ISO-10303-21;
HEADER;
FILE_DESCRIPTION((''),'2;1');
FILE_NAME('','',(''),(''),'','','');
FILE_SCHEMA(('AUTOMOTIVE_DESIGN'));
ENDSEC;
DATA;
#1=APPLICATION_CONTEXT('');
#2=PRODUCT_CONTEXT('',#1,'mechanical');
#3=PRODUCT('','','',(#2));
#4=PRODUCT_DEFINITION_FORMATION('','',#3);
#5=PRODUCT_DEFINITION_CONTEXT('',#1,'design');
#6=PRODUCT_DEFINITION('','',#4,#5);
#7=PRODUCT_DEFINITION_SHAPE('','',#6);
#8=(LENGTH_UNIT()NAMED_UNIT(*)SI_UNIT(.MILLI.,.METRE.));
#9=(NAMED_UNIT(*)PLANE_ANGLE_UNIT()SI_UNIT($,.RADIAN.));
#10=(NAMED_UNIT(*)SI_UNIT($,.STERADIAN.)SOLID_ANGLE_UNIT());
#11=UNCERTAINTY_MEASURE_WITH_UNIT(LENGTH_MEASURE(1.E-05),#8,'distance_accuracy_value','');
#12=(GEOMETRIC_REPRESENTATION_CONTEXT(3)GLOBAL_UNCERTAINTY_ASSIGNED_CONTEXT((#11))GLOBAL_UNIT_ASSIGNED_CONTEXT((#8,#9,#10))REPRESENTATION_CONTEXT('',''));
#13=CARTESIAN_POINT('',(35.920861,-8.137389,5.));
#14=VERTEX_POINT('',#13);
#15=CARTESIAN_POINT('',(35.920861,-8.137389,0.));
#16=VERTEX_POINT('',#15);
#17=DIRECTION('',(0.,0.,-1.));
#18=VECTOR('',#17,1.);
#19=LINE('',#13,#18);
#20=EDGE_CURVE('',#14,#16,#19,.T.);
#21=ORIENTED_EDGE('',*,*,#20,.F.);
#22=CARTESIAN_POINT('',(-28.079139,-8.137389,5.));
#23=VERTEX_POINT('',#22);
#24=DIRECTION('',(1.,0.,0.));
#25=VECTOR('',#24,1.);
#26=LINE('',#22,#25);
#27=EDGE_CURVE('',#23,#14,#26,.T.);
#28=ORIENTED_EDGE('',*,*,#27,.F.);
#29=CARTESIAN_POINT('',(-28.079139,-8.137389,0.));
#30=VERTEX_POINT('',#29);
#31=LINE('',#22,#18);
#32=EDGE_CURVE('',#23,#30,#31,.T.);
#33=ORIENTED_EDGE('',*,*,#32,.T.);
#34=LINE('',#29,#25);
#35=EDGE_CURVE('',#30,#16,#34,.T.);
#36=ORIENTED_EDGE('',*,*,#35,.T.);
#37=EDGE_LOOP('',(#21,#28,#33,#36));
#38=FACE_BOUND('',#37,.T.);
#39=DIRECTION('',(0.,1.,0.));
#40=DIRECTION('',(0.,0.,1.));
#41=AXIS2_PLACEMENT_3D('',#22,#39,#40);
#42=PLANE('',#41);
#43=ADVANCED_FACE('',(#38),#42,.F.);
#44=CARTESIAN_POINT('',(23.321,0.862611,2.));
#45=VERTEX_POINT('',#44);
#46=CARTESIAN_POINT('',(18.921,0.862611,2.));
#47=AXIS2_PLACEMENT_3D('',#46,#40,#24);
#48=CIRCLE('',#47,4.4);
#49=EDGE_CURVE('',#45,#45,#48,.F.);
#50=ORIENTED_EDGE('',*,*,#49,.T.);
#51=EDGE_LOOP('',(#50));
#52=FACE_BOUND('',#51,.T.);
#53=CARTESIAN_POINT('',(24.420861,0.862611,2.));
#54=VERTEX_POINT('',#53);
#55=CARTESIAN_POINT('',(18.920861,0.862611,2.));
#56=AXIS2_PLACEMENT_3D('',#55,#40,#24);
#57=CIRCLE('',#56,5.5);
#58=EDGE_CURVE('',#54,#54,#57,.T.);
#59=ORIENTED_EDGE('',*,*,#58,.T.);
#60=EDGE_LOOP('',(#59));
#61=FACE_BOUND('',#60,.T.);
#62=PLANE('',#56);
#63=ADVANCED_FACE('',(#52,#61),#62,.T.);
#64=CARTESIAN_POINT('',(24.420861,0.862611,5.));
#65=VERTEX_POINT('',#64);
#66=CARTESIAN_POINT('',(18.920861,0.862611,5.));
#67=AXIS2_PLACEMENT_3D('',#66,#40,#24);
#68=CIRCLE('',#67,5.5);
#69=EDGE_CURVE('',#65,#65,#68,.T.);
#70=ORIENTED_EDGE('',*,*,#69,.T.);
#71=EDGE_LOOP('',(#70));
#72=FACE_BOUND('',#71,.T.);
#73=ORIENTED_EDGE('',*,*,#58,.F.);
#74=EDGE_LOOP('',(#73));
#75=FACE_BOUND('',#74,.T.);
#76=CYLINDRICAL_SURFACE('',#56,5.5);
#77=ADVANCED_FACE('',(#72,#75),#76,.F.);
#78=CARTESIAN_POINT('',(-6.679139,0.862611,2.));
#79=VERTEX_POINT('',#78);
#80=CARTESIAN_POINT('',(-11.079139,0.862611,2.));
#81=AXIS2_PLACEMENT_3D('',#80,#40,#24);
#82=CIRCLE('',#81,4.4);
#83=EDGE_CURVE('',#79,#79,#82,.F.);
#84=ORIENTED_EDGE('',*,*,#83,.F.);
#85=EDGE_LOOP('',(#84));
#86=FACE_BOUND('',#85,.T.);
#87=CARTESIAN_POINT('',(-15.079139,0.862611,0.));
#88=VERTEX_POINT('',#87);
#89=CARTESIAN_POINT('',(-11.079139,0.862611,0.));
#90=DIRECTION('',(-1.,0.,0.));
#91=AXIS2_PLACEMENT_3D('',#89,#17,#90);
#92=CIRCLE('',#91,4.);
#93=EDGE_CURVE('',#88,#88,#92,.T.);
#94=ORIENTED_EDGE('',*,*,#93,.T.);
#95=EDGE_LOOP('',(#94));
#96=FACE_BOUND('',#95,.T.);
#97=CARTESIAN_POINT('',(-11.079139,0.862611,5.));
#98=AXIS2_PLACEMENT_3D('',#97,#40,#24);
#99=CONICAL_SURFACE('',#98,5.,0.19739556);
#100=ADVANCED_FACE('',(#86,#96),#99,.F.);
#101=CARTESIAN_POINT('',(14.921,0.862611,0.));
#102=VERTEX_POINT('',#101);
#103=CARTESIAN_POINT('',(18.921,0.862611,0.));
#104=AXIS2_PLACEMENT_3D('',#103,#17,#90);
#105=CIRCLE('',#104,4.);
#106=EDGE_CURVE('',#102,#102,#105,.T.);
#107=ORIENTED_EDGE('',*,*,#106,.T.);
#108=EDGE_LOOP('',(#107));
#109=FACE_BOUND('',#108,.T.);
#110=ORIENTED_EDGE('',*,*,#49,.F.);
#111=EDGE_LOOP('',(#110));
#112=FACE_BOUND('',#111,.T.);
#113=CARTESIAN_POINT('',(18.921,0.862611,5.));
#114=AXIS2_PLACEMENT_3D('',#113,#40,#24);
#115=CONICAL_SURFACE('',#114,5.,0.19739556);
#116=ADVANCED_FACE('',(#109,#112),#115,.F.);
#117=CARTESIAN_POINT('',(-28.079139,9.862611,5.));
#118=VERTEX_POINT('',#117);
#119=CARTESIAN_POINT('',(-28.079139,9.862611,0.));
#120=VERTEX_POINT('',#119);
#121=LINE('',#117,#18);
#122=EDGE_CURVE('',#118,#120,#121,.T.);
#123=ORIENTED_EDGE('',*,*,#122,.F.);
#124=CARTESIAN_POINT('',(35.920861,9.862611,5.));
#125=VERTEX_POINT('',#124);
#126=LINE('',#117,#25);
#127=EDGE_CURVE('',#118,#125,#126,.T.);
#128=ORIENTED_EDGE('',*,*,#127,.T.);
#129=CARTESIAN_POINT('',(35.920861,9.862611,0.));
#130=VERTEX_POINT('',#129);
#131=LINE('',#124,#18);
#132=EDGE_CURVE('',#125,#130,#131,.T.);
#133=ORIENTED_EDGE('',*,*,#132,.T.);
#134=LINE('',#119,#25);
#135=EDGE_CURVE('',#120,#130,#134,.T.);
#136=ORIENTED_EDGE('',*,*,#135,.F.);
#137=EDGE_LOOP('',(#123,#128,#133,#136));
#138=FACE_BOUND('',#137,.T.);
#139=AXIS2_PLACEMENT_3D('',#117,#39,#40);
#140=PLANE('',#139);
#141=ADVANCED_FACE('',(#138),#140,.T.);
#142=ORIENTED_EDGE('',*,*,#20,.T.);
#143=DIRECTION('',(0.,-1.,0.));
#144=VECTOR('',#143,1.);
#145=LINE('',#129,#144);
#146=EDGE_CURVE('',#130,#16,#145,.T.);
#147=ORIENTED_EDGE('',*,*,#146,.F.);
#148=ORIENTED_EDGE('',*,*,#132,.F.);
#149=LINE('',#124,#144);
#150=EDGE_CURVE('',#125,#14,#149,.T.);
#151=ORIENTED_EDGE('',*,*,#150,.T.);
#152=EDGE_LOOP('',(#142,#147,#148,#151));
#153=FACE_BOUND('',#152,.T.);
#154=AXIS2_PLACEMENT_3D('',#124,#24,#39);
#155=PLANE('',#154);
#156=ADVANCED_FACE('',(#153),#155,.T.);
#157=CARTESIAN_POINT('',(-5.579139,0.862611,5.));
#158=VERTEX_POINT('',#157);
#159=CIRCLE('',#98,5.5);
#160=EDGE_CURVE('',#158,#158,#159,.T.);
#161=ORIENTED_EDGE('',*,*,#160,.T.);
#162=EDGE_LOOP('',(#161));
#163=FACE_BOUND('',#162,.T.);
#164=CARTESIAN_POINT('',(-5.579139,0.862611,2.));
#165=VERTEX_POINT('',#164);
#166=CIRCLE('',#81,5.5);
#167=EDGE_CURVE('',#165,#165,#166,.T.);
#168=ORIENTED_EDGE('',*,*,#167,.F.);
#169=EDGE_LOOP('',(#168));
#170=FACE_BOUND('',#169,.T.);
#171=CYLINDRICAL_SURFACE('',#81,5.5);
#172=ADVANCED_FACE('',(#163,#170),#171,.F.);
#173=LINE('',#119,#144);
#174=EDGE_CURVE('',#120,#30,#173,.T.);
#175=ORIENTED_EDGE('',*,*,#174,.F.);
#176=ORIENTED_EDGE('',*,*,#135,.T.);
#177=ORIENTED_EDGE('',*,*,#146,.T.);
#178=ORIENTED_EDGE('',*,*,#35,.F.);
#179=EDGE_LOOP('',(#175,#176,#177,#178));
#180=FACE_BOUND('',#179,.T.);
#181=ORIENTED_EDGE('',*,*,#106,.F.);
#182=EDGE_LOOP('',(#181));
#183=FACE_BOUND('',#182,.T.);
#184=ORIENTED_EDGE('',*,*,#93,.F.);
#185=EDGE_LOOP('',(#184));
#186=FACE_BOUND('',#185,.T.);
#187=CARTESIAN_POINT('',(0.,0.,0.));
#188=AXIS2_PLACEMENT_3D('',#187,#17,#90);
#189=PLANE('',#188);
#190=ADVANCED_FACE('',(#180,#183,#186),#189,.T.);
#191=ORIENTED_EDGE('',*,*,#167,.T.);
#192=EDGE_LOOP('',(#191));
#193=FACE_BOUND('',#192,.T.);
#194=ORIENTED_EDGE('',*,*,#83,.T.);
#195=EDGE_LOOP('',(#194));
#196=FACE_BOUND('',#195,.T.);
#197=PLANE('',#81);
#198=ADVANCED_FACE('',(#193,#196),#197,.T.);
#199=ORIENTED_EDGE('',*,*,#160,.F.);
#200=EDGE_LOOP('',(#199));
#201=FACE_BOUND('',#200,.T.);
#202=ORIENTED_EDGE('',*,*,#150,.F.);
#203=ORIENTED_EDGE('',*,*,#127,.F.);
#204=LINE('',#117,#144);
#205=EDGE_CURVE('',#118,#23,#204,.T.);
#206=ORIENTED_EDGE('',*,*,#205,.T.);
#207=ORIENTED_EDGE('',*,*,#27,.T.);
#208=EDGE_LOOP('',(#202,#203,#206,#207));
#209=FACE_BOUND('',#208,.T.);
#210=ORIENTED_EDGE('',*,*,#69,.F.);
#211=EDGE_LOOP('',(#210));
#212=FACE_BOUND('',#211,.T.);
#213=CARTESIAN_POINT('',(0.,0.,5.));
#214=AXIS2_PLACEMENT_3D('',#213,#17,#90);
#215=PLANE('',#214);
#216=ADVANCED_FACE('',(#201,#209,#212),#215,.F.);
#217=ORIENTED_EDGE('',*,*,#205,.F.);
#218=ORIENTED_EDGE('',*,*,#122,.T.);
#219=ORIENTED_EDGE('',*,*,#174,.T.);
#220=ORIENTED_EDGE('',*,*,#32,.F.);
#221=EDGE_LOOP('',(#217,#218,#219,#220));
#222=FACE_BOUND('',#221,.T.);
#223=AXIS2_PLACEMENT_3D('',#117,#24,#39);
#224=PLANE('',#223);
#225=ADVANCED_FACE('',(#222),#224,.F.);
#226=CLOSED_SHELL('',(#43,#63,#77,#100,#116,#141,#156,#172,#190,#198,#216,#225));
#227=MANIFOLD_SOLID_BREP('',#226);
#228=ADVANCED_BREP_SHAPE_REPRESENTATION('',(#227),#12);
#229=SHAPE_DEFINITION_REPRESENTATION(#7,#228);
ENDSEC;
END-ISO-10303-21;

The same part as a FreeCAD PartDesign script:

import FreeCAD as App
import Part
import Sketcher

V = App.Vector

doc = App.newDocument("Part")
body = doc.addObject("PartDesign::Body", "Body")

sketch1 = body.newObject("Sketcher::SketchObject", "Sketch")
sketch1.AttachmentSupport = (doc.getObject("XY_Plane"), [""])
sketch1.MapMode = "FlatFace"
sketch1.addGeometry(Part.LineSegment(V(-28.079139, 9.862611, 0), V(-28.079139, -8.137389, 0)), False)
sketch1.addGeometry(Part.LineSegment(V(-28.079139, -8.137389, 0), V(35.920861, -8.137389, 0)), False)
sketch1.addGeometry(Part.LineSegment(V(35.920861, -8.137389, 0), V(35.920861, 9.862611, 0)), False)
sketch1.addGeometry(Part.LineSegment(V(35.920861, 9.862611, 0), V(-28.079139, 9.862611, 0)), False)
sketch1.addGeometry(Part.Circle(V(-11.079139, 0.862611, 0), V(0, 0, 1), 3), False)
sketch1.addGeometry(Part.Circle(V(18.920861, 0.862611, 0), V(0, 0, 1), 3), False)
sketch1.addConstraint(Sketcher.Constraint("Coincident", 0, 2, 1, 1))
sketch1.addConstraint(Sketcher.Constraint("Coincident", 1, 2, 2, 1))
sketch1.addConstraint(Sketcher.Constraint("Coincident", 2, 2, 3, 1))
sketch1.addConstraint(Sketcher.Constraint("Coincident", 3, 2, 0, 1))
sketch1.addConstraint(Sketcher.Constraint("Vertical", 0))
sketch1.addConstraint(Sketcher.Constraint("Horizontal", 1))
sketch1.addConstraint(Sketcher.Constraint("Vertical", 2))
sketch1.addConstraint(Sketcher.Constraint("Horizontal", 3))
sketch1.addConstraint(Sketcher.Constraint("Equal", 4, 5))
sketch1.addConstraint(Sketcher.Constraint("Horizontal", 4, 3, 5, 3))
sketch1.addConstraint(Sketcher.Constraint("Diameter", 4, 6.0))
sketch1.addConstraint(Sketcher.Constraint("DistanceX", 1, 1, 1, 2, 64.0))
sketch1.addConstraint(Sketcher.Constraint("DistanceY", 0, 2, 0, 1, 18.0))
sketch1.addConstraint(Sketcher.Constraint("DistanceX", 4, 3, 5, 3, 30.0))
sketch1.addConstraint(Sketcher.Constraint("DistanceX", 0, 2, 4, 3, 17.0))
sketch1.addConstraint(Sketcher.Constraint("DistanceY", 0, 2, 4, 3, 9.0))
sketch1.addConstraint(Sketcher.Constraint("DistanceX", 4, 3, -1, 1, 11.079139))
sketch1.addConstraint(Sketcher.Constraint("DistanceY", -1, 1, 4, 3, 0.862611))
pad1 = body.newObject("PartDesign::Pad", "Pad")
pad1.Profile = sketch1
pad1.Length = 5

sketch2 = body.newObject("Sketcher::SketchObject", "Sketch001")
sketch2.AttachmentSupport = (doc.getObject("XY_Plane"), [""])
sketch2.MapMode = "FlatFace"
sketch2.AttachmentOffset = App.Placement(V(0, 0, 5), App.Rotation())
sketch2.addGeometry(Part.Circle(V(-11.079139, 0.862611, 0), V(0, 0, 1), 5.5), False)
sketch2.addGeometry(Part.Circle(V(18.920861, 0.862611, 0), V(0, 0, 1), 5.5), False)
sketch2.addConstraint(Sketcher.Constraint("Equal", 0, 1))
sketch2.addConstraint(Sketcher.Constraint("Horizontal", 0, 3, 1, 3))
sketch2.addConstraint(Sketcher.Constraint("Diameter", 0, 11.0))
sketch2.addConstraint(Sketcher.Constraint("DistanceX", 0, 3, 1, 3, 30.0))
sketch2.addConstraint(Sketcher.Constraint("DistanceX", 0, 3, -1, 1, 11.079139))
sketch2.addConstraint(Sketcher.Constraint("DistanceY", -1, 1, 0, 3, 0.862611))
pocket1 = body.newObject("PartDesign::Pocket", "Pocket")
pocket1.Profile = sketch2
pocket1.Length = 3

sketch3 = body.newObject("Sketcher::SketchObject", "Sketch002")
sketch3.AttachmentSupport = (doc.getObject("XZ_Plane"), [""])
sketch3.MapMode = "FlatFace"
sketch3.AttachmentOffset = App.Placement(V(0, 0, -0.862611), App.Rotation())
sketch3.addGeometry(Part.LineSegment(V(-16.079139, 5, 0), V(-11.079139, 5, 0)), False)
sketch3.addGeometry(Part.LineSegment(V(-11.079139, 5, 0), V(-11.079139, 0, 0)), False)
sketch3.addGeometry(Part.LineSegment(V(-11.079139, 0, 0), V(-15.079139, 0, 0)), False)
sketch3.addGeometry(Part.LineSegment(V(-15.079139, 0, 0), V(-16.079139, 5, 0)), False)
sketch3.addGeometry(Part.LineSegment(V(-11.079139, 0, 0), V(-11.079139, 5, 0)), True)
sketch3.addConstraint(Sketcher.Constraint("Coincident", 0, 2, 1, 1))
sketch3.addConstraint(Sketcher.Constraint("Coincident", 1, 2, 2, 1))
sketch3.addConstraint(Sketcher.Constraint("Coincident", 2, 2, 3, 1))
sketch3.addConstraint(Sketcher.Constraint("Coincident", 3, 2, 0, 1))
sketch3.addConstraint(Sketcher.Constraint("Horizontal", 0))
sketch3.addConstraint(Sketcher.Constraint("Vertical", 1))
sketch3.addConstraint(Sketcher.Constraint("Horizontal", 2))
sketch3.addConstraint(Sketcher.Constraint("Vertical", 4))
sketch3.addConstraint(Sketcher.Constraint("Coincident", 4, 1, 1, 2))
sketch3.addConstraint(Sketcher.Constraint("PointOnObject", 1, 2, -1))
sketch3.addConstraint(Sketcher.Constraint("Horizontal", 3, 2, 4, 2))
sketch3.addConstraint(Sketcher.Constraint("Equal", 0, 1))
sketch3.addConstraint(Sketcher.Constraint("DistanceX", 0, 1, 0, 2, 5.0))
sketch3.addConstraint(Sketcher.Constraint("DistanceX", 2, 2, 2, 1, 4.0))
sketch3.addConstraint(Sketcher.Constraint("DistanceX", 0, 2, -1, 1, 11.079139))
groove = body.newObject("PartDesign::Groove", "Groove")
groove.Profile = sketch3
groove.ReferenceAxis = (sketch3, ["Axis0"])
groove.Angle = 360

sketch4 = body.newObject("Sketcher::SketchObject", "Sketch003")
sketch4.AttachmentSupport = (doc.getObject("XZ_Plane"), [""])
sketch4.MapMode = "FlatFace"
sketch4.AttachmentOffset = App.Placement(V(0, 0, -0.862611), App.Rotation())
sketch4.addGeometry(Part.LineSegment(V(18.921, 5, 0), V(23.921, 5, 0)), False)
sketch4.addGeometry(Part.LineSegment(V(23.921, 5, 0), V(22.921, 0, 0)), False)
sketch4.addGeometry(Part.LineSegment(V(22.921, 0, 0), V(18.921, 0, 0)), False)
sketch4.addGeometry(Part.LineSegment(V(18.921, 0, 0), V(18.921, 5, 0)), False)
sketch4.addGeometry(Part.LineSegment(V(18.921, 0, 0), V(18.921, 5, 0)), True)
sketch4.addConstraint(Sketcher.Constraint("Coincident", 0, 2, 1, 1))
sketch4.addConstraint(Sketcher.Constraint("Coincident", 1, 2, 2, 1))
sketch4.addConstraint(Sketcher.Constraint("Coincident", 2, 2, 3, 1))
sketch4.addConstraint(Sketcher.Constraint("Coincident", 3, 2, 0, 1))
sketch4.addConstraint(Sketcher.Constraint("Horizontal", 0))
sketch4.addConstraint(Sketcher.Constraint("Horizontal", 2))
sketch4.addConstraint(Sketcher.Constraint("Vertical", 3))
sketch4.addConstraint(Sketcher.Constraint("Vertical", 4))
sketch4.addConstraint(Sketcher.Constraint("Coincident", 4, 1, 2, 2))
sketch4.addConstraint(Sketcher.Constraint("PointOnObject", 1, 2, -1))
sketch4.addConstraint(Sketcher.Constraint("Horizontal", 0, 2, 4, 2))
sketch4.addConstraint(Sketcher.Constraint("Equal", 0, 3))
sketch4.addConstraint(Sketcher.Constraint("DistanceX", 0, 1, 0, 2, 5.0))
sketch4.addConstraint(Sketcher.Constraint("DistanceX", 2, 2, 2, 1, 4.0))
sketch4.addConstraint(Sketcher.Constraint("DistanceX", -1, 1, 0, 2, 23.921))
groove2 = body.newObject("PartDesign::Groove", "Groove001")
groove2.Profile = sketch4
groove2.ReferenceAxis = (sketch4, ["Axis0"])
groove2.Angle = 360

doc.recompute()
